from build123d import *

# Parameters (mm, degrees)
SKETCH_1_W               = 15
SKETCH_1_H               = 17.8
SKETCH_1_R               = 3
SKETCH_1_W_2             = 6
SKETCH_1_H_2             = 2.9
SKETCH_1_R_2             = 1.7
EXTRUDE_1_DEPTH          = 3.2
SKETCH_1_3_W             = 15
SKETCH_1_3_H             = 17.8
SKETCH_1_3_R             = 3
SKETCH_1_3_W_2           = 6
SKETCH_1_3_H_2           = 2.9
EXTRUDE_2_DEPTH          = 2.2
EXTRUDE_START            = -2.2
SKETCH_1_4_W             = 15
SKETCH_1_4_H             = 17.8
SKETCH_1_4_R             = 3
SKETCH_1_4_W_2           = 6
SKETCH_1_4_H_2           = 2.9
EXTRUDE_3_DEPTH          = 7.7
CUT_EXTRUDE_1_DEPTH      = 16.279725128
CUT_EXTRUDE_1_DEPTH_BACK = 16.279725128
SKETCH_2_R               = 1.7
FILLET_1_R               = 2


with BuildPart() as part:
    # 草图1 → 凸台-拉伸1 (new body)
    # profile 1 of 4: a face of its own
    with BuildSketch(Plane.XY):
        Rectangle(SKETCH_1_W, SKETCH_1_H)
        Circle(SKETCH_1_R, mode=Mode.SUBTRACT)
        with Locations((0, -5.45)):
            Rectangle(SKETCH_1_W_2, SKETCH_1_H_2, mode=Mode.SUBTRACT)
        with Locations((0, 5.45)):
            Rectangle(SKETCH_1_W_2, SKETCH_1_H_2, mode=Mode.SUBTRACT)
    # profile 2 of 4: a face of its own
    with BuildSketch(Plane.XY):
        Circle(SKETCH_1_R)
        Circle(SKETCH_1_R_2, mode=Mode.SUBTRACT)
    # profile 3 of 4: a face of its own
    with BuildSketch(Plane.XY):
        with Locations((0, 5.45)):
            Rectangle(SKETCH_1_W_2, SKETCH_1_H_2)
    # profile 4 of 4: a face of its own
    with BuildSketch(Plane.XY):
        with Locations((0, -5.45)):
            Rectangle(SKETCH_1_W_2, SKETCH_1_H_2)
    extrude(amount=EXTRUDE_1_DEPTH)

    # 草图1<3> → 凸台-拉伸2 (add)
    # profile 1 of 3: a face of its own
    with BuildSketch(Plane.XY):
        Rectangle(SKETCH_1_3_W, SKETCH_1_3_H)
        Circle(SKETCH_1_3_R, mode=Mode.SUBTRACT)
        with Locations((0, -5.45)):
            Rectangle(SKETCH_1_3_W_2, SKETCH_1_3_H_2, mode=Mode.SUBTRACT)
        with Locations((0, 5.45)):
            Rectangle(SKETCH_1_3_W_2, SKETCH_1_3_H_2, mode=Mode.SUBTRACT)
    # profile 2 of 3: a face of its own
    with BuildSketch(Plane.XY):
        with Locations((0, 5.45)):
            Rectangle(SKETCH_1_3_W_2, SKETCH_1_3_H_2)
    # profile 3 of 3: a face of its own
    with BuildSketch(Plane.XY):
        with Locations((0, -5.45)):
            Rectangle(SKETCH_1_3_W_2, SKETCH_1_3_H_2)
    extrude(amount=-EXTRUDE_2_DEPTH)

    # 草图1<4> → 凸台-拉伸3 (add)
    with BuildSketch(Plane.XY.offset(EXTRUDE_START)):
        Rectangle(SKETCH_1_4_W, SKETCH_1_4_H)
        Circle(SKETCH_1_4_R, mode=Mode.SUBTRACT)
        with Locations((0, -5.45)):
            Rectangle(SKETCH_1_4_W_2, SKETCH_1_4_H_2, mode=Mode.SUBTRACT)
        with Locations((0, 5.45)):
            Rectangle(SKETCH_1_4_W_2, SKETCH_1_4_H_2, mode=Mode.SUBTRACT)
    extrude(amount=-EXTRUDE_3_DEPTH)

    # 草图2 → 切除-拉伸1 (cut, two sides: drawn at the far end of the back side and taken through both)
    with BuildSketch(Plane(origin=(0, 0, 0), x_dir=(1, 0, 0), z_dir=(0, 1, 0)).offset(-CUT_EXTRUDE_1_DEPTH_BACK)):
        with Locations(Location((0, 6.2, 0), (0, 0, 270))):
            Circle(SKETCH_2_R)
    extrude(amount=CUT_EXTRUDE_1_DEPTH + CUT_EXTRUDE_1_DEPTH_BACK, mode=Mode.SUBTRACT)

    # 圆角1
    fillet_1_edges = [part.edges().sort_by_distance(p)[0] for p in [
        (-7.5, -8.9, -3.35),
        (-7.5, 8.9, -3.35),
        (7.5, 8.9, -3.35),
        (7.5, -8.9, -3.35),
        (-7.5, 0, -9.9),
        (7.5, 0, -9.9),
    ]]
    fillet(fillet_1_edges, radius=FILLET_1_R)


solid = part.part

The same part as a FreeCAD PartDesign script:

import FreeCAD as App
import Part
import Sketcher
Q = App.Units.Quantity


def edges_at(feature, points):
    """Names of the edges that pass closest to the given points."""
    edges = feature.Shape.Edges
    near = lambda p: min(range(len(edges)), key=lambda i: edges[i].distToShape(Part.Vertex(*p))[0])
    return sorted({f"Edge{near(p) + 1}" for p in points})


def add_polygon(sketch, points):
    """Adds a closed chain of lines whose ends are joined by coincident constraints."""
    first, n = sketch.GeometryCount, len(points)
    for a, b in zip(points, points[1:] + points[:1]):
        sketch.addGeometry(Part.LineSegment(App.Vector(*a, 0), App.Vector(*b, 0)), False)
    for i in range(n):
        sketch.addConstraint(Sketcher.Constraint("Coincident", first + i, 2, first + (i + 1) % n, 1))

doc = App.newDocument("Part")
body = doc.addObject("PartDesign::Body", "Body")

# Sketch on XY plane
sketch1 = doc.addObject("Sketcher::SketchObject", "Sketch")
body.addObject(sketch1)
sketch1.AttachmentSupport = (doc.XY_Plane, [""])
sketch1.MapMode = "FlatFace"
add_polygon(sketch1, [(-7.5, 8.9), (-7.5, -8.9), (7.5, -8.9), (7.5, 8.9)])  # lines 0-3
sketch1.addGeometry(Part.Circle(App.Vector(0, 0, 0), App.Vector(0, 0, 1), 1.7), False)  # 4
sketch1.addConstraint([
    Sketcher.Constraint("Vertical", 0),
    Sketcher.Constraint("Horizontal", 1),
    Sketcher.Constraint("Vertical", 2),
    Sketcher.Constraint("Horizontal", 3),
    Sketcher.Constraint("Coincident", 4, 3, -1, 1),
    Sketcher.Constraint("Symmetric", 0, 2, 2, 2, -1, 1),
    Sketcher.Constraint("Diameter", 4, Q("3.4 mm")),
    Sketcher.Constraint("DistanceX", 1, 1, 1, 2, Q("15 mm")),
    Sketcher.Constraint("DistanceY", 0, 2, 0, 1, Q("17.8 mm")),
])
pad1 = doc.addObject("PartDesign::Pad", "Pad")
body.addObject(pad1)
pad1.Profile = sketch1
pad1.Length = 3.2

# Sketch on XY plane
sketch2 = doc.addObject("Sketcher::SketchObject", "Sketch001")
body.addObject(sketch2)
sketch2.AttachmentSupport = (doc.XY_Plane, [""])
sketch2.MapMode = "FlatFace"
add_polygon(sketch2, [(-7.5, 8.9), (-7.5, -8.9), (7.5, -8.9), (7.5, 8.9)])  # lines 0-3
sketch2.addGeometry(Part.Circle(App.Vector(0, 0, 0), App.Vector(0, 0, 1), 3), False)  # 4
sketch2.addConstraint([
    Sketcher.Constraint("Vertical", 0),
    Sketcher.Constraint("Horizontal", 1),
    Sketcher.Constraint("Vertical", 2),
    Sketcher.Constraint("Horizontal", 3),
    Sketcher.Constraint("Coincident", 4, 3, -1, 1),
    Sketcher.Constraint("Symmetric", 0, 2, 2, 2, -1, 1),
    Sketcher.Constraint("Diameter", 4, Q("6 mm")),
    Sketcher.Constraint("DistanceX", 1, 1, 1, 2, Q("15 mm")),
    Sketcher.Constraint("DistanceY", 0, 2, 0, 1, Q("17.8 mm")),
])
pad2 = doc.addObject("PartDesign::Pad", "Pad001")
body.addObject(pad2)
pad2.Profile = sketch2
pad2.Length = 2.2
pad2.Reversed = True

# Sketch on XY plane
sketch3 = doc.addObject("Sketcher::SketchObject", "Sketch002")
body.addObject(sketch3)
sketch3.AttachmentSupport = (doc.XY_Plane, [""])
sketch3.MapMode = "FlatFace"
sketch3.AttachmentOffset = App.Placement(App.Vector(0, 0, -2.2), App.Rotation())
add_polygon(sketch3, [(-7.5, 8.9), (-7.5, -8.9), (7.5, -8.9), (7.5, 8.9)])  # lines 0-3
add_polygon(sketch3, [(3, -6.9), (-3, -6.9), (-3, -4), (3, -4)])  # lines 4-7
sketch3.addGeometry(Part.Circle(App.Vector(0, 0, 0), App.Vector(0, 0, 1), 3), False)  # 8
add_polygon(sketch3, [(3, 4), (-3, 4), (-3, 6.9), (3, 6.9)])  # lines 9-12
sketch3.addConstraint([
    Sketcher.Constraint("Vertical", 0),
    Sketcher.Constraint("Horizontal", 1),
    Sketcher.Constraint("Vertical", 2),
    Sketcher.Constraint("Horizontal", 3),
    Sketcher.Constraint("Horizontal", 4),
    Sketcher.Constraint("Vertical", 5),
    Sketcher.Constraint("Horizontal", 6),
    Sketcher.Constraint("Vertical", 7),
    Sketcher.Constraint("Horizontal", 9),
    Sketcher.Constraint("Vertical", 10),
    Sketcher.Constraint("Horizontal", 11),
    Sketcher.Constraint("Vertical", 12),
    Sketcher.Constraint("Coincident", 8, 3, -1, 1),
    Sketcher.Constraint("Symmetric", 0, 2, 2, 2, -1, 1),
    Sketcher.Constraint("Symmetric", 6, 2, 9, 2, -1, 1),
    Sketcher.Constraint("Symmetric", 4, 2, 11, 2, -1, 1),
    Sketcher.Constraint("Vertical", 5, 2, 9, 2),
    Sketcher.Constraint("Diameter", 8, Q("6 mm")),
    Sketcher.Constraint("DistanceX", 1, 1, 1, 2, Q("15 mm")),
    Sketcher.Constraint("DistanceX", 4, 2, 4, 1, Q("6 mm")),
    Sketcher.Constraint("DistanceY", 0, 2, 0, 1, Q("17.8 mm")),
    Sketcher.Constraint("DistanceY", 5, 1, 5, 2, Q("2.9 mm")),
    Sketcher.Constraint("DistanceY", 5, 2, -1, 1, Q("4 mm")),
])
pad3 = doc.addObject("PartDesign::Pad", "Pad002")
body.addObject(pad3)
pad3.Profile = sketch3
pad3.Length = 7.7
pad3.Reversed = True

# Sketch on XZ plane
sketch4 = doc.addObject("Sketcher::SketchObject", "Sketch003")
body.addObject(sketch4)
sketch4.AttachmentSupport = (doc.XZ_Plane, [""])
sketch4.MapMode = "FlatFace"
sketch4.addGeometry(Part.Circle(App.Vector(0, -6.2, 0), App.Vector(0, 0, 1), 1.7), False)
sketch4.addConstraint([
    Sketcher.Constraint("PointOnObject", 0, 3, -2),
    Sketcher.Constraint("Diameter", 0, Q("3.4 mm")),
    Sketcher.Constraint("DistanceY", 0, 3, -1, 1, Q("6.2 mm")),
])
pocket1 = doc.addObject("PartDesign::Pocket", "Pocket")
body.addObject(pocket1)
pocket1.Profile = sketch4
pocket1.Type = "ThroughAll"
pocket1.Midplane = True
doc.recompute()

fillet = doc.addObject("PartDesign::Fillet", "Fillet")
body.addObject(fillet)
fillet.Base = (pocket1, edges_at(pocket1, [
    (-7.5, -8.9, -3.35),
    (-7.5, 8.9, -3.35),
    (7.5, 8.9, -3.35),
    (7.5, -8.9, -3.35),
    (-7.5, 0, -9.9),
    (7.5, 0, -9.9),
]))
fillet.Radius = 2

doc.recompute()
